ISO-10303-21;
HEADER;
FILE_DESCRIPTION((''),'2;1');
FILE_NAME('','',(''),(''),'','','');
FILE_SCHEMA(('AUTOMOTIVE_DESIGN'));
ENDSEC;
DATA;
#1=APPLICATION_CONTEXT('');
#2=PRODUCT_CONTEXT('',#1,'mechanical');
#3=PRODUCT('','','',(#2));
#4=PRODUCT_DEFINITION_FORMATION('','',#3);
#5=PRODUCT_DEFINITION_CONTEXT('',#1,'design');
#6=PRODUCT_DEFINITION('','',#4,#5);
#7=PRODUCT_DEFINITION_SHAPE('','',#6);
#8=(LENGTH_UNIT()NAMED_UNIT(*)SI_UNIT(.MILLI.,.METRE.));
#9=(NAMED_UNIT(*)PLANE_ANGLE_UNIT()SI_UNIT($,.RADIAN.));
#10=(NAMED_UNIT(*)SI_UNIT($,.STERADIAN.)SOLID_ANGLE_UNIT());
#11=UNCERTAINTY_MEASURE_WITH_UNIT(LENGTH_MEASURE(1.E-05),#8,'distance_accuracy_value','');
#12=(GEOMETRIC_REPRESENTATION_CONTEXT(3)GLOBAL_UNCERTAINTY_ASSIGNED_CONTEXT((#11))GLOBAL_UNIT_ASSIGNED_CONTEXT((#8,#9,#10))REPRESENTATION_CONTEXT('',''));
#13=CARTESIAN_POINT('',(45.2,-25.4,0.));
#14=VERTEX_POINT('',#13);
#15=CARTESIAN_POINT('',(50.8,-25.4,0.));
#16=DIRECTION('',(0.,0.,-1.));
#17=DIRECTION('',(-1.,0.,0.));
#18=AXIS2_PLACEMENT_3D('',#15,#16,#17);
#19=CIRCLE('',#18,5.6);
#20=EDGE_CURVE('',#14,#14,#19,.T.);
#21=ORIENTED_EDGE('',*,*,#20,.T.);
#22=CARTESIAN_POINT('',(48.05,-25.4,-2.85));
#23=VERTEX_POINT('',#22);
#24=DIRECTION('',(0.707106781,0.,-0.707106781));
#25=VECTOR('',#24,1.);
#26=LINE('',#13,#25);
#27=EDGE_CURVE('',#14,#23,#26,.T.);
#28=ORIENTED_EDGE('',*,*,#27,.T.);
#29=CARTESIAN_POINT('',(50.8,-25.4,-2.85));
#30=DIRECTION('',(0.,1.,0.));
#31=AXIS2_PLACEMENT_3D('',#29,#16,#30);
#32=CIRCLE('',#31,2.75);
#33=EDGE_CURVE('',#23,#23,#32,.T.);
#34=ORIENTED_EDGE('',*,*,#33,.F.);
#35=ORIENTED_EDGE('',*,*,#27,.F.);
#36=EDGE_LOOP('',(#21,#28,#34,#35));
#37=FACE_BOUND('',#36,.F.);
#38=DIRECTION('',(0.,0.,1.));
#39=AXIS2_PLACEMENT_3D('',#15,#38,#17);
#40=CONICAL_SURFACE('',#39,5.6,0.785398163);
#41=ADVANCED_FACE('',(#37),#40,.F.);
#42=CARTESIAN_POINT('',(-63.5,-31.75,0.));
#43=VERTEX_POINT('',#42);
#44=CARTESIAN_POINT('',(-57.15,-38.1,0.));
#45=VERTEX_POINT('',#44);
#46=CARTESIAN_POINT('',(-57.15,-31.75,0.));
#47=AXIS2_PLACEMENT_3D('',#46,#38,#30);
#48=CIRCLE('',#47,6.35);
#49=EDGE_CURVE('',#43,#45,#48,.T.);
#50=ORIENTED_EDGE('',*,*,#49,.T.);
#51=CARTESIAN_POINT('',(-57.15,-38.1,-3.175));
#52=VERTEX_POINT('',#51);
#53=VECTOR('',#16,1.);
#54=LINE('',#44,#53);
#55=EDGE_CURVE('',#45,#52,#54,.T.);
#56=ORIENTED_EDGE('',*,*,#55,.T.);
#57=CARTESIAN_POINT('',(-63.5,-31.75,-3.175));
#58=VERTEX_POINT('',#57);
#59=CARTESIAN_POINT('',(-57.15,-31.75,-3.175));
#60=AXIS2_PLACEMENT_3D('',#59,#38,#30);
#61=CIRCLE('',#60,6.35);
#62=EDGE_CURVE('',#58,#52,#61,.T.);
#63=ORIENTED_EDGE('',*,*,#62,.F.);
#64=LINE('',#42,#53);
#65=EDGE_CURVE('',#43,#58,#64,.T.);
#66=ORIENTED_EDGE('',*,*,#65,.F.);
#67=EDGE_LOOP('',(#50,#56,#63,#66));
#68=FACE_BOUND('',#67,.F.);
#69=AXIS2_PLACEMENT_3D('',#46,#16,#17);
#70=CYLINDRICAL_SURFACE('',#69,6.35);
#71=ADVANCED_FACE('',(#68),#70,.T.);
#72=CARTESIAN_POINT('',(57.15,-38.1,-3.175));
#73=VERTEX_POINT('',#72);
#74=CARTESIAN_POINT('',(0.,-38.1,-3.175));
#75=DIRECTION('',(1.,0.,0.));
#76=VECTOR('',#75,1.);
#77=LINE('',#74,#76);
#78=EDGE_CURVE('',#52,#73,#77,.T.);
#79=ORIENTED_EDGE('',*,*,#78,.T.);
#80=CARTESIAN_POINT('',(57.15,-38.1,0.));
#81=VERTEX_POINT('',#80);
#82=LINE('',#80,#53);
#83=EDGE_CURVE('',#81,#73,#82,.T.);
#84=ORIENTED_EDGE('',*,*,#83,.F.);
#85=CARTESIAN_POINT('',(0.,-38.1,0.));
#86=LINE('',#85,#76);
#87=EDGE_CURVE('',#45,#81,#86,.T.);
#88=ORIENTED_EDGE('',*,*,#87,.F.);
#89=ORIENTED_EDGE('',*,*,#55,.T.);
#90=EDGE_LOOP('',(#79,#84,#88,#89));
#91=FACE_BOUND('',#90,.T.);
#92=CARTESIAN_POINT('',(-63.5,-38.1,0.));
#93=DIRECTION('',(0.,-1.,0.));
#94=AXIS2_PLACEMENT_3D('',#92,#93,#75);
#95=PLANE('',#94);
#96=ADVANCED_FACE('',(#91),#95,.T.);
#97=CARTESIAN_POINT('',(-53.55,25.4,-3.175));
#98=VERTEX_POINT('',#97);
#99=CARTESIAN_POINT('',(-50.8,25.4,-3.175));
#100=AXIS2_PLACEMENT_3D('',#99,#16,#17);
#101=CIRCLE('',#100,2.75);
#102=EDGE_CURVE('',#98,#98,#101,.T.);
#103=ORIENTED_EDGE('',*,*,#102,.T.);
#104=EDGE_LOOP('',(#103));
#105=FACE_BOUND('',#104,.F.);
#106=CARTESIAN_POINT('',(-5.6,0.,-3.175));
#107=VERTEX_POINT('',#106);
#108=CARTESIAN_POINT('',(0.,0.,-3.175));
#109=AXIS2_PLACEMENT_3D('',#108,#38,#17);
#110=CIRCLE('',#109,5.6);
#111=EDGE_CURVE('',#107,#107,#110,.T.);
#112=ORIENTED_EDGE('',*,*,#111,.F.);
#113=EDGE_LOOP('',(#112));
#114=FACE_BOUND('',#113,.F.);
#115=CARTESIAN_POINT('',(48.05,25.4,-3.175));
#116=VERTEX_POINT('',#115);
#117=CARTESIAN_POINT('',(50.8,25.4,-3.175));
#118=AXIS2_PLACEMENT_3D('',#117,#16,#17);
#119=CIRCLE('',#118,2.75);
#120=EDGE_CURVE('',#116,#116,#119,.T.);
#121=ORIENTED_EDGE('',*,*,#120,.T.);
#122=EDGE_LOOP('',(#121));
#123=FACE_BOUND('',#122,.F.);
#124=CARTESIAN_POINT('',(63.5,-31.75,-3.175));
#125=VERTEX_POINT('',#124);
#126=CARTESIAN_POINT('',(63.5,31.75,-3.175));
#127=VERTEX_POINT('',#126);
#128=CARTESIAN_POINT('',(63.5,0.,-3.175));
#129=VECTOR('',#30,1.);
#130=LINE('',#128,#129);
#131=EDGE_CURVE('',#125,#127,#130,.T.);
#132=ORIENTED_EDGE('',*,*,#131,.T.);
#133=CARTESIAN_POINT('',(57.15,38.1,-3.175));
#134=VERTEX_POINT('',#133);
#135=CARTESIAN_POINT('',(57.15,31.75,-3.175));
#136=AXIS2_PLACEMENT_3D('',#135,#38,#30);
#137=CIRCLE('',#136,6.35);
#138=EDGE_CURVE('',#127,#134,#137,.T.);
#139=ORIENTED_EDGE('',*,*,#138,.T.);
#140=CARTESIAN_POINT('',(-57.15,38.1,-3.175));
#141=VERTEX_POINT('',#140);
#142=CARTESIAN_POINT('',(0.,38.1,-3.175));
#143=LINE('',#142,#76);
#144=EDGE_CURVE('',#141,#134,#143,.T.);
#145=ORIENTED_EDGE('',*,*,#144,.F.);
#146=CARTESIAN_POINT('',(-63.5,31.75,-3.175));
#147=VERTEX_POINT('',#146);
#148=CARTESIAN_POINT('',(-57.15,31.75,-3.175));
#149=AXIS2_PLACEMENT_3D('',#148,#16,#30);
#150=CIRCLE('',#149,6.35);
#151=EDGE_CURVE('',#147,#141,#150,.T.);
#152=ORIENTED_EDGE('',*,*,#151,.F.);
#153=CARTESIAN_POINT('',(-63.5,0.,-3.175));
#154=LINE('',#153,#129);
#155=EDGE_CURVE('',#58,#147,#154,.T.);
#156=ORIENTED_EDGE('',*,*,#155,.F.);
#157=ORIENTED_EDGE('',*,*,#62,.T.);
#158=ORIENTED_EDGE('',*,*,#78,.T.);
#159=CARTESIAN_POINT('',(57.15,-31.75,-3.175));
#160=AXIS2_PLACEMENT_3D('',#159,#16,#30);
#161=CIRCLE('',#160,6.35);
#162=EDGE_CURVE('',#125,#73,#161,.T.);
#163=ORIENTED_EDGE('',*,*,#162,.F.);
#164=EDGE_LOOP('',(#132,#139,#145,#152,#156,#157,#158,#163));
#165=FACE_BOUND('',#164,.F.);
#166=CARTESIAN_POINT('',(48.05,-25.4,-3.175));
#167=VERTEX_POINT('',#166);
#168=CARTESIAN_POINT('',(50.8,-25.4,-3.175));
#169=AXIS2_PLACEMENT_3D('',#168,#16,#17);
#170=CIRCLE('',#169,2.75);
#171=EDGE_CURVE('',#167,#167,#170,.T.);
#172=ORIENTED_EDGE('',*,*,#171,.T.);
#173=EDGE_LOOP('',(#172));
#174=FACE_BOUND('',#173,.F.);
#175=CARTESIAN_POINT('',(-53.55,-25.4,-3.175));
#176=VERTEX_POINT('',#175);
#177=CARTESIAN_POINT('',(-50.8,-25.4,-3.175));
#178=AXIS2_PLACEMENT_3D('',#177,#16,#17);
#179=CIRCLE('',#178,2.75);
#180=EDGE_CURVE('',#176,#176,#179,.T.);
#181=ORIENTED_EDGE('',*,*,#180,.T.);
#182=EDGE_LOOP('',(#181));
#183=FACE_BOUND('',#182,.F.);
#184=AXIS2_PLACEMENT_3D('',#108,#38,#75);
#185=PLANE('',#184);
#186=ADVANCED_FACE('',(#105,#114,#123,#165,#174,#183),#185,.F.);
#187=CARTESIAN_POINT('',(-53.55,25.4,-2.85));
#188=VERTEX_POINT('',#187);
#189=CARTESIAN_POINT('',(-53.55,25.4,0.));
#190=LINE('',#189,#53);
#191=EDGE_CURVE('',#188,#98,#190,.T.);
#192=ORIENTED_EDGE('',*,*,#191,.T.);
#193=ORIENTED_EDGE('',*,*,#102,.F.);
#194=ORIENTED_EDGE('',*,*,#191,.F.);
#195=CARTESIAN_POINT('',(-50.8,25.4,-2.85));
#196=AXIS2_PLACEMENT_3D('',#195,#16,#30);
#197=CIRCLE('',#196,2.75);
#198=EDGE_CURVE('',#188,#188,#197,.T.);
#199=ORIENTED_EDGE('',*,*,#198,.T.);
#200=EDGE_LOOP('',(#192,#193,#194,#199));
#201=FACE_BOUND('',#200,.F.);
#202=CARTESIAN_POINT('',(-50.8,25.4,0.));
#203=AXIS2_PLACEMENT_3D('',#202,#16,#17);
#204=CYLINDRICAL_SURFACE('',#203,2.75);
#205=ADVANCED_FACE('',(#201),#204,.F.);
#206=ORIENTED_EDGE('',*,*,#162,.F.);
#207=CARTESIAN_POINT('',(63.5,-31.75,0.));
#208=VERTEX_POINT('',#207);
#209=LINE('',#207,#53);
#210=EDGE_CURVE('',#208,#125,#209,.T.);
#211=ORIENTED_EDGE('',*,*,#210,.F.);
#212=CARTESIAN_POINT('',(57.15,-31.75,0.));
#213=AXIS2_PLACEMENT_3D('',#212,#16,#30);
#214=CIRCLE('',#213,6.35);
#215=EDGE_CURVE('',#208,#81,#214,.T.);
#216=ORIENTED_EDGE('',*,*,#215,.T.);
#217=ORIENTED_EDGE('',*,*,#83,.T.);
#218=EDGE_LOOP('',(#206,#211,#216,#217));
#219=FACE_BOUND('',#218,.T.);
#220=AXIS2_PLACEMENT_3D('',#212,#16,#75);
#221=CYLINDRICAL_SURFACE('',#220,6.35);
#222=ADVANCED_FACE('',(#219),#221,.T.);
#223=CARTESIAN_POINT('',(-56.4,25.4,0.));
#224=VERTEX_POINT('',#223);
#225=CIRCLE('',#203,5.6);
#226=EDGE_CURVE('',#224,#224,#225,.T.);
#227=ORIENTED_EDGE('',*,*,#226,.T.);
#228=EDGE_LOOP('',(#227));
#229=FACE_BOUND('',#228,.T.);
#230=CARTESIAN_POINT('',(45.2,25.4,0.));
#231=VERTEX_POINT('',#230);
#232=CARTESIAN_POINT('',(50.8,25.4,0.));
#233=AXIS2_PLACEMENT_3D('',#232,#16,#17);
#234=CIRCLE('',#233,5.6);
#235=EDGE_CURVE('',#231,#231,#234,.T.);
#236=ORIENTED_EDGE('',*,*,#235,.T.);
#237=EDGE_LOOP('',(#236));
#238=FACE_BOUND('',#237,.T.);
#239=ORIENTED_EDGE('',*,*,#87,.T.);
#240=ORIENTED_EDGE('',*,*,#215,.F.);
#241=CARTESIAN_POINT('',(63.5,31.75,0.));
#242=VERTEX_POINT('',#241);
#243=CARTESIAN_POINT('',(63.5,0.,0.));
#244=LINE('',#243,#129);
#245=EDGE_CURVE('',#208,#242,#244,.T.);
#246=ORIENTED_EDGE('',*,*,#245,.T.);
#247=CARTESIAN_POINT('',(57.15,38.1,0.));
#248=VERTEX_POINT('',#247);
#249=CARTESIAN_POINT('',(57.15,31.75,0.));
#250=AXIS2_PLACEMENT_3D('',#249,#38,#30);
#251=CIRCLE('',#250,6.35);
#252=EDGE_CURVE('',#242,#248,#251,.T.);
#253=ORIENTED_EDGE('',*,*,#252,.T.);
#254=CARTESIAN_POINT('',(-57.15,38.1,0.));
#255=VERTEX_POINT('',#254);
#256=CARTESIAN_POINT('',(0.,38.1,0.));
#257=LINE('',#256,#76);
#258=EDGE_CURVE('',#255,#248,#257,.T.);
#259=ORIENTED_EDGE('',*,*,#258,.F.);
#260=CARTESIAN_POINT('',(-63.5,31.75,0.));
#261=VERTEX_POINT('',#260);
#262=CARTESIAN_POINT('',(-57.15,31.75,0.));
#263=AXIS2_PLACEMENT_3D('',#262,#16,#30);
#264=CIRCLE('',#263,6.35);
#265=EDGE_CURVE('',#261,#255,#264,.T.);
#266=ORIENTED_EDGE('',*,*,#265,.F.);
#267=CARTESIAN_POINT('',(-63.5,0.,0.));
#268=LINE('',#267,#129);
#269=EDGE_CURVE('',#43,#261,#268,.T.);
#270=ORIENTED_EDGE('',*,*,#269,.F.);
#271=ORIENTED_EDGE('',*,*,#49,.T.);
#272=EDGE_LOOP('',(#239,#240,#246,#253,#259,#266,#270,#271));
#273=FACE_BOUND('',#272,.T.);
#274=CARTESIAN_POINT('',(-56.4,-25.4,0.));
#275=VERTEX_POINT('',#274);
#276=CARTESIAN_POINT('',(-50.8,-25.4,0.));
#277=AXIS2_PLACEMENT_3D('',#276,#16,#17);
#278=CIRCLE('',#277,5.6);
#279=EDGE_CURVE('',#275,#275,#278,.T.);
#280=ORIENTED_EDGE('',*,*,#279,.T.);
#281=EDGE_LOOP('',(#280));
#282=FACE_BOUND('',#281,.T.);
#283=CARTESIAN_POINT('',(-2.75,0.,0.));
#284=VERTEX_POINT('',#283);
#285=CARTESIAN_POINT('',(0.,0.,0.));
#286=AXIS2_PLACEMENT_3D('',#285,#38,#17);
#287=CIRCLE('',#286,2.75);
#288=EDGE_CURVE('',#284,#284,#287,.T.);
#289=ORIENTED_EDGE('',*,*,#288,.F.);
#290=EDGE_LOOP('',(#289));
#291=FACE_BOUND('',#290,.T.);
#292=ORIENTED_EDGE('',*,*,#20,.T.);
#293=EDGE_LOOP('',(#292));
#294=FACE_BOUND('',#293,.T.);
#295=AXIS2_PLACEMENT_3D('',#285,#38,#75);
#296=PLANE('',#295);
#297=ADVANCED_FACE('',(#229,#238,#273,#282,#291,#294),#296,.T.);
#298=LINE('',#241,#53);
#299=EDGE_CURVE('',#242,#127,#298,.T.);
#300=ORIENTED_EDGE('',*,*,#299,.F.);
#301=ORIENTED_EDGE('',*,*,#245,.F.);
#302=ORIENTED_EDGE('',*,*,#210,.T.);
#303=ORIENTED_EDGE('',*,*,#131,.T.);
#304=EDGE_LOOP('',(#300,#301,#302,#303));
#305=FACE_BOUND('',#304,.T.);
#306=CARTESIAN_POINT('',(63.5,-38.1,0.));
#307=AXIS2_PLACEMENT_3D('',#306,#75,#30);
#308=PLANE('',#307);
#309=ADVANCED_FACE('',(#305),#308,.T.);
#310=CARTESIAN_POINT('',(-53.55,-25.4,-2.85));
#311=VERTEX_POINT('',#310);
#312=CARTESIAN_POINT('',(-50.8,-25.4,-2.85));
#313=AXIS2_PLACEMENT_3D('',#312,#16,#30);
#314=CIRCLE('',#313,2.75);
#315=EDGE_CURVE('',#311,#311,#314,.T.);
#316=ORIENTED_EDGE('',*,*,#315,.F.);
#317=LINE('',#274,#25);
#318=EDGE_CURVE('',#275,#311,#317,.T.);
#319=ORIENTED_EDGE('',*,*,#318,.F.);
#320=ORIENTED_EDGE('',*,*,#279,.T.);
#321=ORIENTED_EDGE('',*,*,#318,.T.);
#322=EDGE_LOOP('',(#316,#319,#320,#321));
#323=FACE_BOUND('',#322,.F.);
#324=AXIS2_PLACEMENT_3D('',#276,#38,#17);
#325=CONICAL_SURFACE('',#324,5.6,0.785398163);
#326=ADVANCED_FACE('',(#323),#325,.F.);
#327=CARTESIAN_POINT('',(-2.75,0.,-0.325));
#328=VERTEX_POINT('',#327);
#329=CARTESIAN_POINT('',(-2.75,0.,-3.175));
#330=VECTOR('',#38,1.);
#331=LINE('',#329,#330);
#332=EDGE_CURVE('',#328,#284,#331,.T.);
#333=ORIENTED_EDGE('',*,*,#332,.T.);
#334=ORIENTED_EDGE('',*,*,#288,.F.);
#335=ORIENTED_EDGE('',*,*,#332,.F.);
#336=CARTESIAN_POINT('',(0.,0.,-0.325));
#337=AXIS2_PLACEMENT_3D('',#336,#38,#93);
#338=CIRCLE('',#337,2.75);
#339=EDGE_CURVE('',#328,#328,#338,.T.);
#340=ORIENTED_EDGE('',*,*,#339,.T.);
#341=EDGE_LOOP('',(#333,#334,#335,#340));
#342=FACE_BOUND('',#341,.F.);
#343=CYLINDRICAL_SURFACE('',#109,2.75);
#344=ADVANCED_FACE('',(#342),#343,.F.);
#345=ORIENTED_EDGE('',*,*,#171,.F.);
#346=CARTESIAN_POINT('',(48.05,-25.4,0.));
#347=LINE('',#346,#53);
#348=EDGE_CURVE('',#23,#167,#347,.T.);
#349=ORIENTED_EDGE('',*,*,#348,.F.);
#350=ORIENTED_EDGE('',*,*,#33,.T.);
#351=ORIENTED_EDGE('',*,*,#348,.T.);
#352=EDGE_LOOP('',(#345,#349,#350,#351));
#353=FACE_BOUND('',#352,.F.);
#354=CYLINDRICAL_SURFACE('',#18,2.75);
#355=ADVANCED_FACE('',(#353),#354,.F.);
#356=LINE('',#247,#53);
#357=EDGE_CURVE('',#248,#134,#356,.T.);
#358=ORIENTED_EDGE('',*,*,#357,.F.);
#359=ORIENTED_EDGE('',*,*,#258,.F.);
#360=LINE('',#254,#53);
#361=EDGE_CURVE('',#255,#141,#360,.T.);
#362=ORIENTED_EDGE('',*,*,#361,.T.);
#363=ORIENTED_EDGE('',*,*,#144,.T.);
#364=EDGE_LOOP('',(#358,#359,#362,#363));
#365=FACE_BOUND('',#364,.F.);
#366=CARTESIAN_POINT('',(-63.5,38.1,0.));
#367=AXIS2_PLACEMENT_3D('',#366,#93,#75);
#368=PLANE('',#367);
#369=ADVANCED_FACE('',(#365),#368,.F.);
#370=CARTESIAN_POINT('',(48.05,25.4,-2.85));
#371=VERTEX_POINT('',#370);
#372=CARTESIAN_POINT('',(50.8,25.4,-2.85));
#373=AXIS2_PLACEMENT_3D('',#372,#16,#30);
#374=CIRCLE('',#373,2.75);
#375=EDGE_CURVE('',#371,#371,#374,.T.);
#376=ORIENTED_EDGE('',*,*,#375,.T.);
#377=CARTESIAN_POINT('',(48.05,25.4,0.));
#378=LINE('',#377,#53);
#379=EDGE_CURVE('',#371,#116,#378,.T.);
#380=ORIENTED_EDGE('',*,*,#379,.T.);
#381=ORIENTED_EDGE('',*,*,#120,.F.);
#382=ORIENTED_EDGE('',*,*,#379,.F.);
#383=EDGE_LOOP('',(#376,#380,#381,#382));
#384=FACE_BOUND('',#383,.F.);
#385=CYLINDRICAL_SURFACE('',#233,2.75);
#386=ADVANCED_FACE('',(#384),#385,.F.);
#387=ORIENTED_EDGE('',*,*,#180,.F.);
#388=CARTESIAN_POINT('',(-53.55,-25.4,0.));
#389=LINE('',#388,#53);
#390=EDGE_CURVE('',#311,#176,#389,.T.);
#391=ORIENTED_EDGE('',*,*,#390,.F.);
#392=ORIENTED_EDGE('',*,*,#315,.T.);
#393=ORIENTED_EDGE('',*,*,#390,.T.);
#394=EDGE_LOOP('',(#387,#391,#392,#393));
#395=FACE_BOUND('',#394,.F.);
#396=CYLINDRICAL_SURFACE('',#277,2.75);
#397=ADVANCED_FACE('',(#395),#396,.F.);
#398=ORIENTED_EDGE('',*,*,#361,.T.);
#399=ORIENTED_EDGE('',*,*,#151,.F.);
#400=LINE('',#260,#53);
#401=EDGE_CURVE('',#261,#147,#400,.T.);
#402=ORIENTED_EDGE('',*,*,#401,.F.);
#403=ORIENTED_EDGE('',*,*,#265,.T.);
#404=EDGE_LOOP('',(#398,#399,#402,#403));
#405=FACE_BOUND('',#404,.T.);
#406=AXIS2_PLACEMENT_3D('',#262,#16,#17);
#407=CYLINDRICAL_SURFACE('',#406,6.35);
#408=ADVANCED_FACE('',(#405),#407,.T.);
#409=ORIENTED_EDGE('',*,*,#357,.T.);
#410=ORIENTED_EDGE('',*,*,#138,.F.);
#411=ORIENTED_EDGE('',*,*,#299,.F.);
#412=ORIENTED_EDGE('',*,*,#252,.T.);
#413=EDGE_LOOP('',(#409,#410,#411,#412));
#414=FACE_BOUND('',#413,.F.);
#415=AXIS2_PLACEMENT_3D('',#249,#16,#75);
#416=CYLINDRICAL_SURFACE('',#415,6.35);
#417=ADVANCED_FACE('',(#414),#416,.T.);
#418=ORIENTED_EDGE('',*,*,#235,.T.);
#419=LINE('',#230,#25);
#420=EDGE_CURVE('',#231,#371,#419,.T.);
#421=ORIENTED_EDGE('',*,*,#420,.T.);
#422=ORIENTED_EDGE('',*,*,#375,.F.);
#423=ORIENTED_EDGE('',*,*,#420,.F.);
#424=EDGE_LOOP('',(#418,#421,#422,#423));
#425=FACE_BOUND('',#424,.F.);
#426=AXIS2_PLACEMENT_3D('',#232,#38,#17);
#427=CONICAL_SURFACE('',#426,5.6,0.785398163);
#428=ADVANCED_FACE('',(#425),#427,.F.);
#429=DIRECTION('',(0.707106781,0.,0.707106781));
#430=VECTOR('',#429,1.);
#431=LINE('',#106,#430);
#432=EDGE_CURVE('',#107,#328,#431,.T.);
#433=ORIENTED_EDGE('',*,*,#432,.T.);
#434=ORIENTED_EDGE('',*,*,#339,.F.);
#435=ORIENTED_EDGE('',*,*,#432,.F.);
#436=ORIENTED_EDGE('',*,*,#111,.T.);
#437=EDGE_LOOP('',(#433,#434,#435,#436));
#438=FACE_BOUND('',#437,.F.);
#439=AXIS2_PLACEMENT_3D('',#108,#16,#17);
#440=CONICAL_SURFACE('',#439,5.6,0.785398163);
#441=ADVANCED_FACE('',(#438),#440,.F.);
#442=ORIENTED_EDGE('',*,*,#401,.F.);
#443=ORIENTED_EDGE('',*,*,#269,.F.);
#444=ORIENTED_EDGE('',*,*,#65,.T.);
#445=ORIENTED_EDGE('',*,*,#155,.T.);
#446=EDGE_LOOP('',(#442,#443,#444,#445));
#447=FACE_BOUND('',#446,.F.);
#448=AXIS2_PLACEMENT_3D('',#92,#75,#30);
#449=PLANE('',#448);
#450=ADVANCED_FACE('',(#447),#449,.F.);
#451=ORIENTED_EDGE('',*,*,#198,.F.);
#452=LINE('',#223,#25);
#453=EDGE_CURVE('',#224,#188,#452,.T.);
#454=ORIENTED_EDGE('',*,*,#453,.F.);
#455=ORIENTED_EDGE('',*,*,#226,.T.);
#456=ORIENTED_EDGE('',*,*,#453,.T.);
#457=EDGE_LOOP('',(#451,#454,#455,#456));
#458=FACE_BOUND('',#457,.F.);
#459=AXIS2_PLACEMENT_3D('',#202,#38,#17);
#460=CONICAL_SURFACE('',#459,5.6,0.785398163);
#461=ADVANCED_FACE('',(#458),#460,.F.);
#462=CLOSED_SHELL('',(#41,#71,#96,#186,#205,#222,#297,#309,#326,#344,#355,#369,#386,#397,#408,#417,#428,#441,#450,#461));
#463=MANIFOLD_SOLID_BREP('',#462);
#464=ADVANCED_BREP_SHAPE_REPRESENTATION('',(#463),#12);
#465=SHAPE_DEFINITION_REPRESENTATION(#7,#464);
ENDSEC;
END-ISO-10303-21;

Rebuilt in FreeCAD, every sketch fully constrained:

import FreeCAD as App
import Part
import Sketcher
from FreeCAD import Vector
Q = App.Units.Quantity


def edges_at(feature, points):
    """Names of the edges that pass closest to the given points."""
    edges = feature.Shape.Edges
    near = lambda p: min(range(len(edges)), key=lambda i: edges[i].distToShape(Part.Vertex(*p))[0])
    return sorted({f"Edge{near(p) + 1}" for p in points})


def add_polygon(sketch, points):
    """Adds a closed chain of lines whose ends are joined by coincident constraints."""
    first, n = sketch.GeometryCount, len(points)
    for a, b in zip(points, points[1:] + points[:1]):
        sketch.addGeometry(Part.LineSegment(App.Vector(*a, 0), App.Vector(*b, 0)), False)
    for i in range(n):
        sketch.addConstraint(Sketcher.Constraint("Coincident", first + i, 2, first + (i + 1) % n, 1))

doc = App.newDocument("Part")
body = doc.addObject("PartDesign::Body", "Body")

sketch1 = body.newObject("Sketcher::SketchObject", "Sketch")
sketch1.AttachmentSupport = (doc.getObject("XY_Plane"), [""])
sketch1.MapMode = "FlatFace"
add_polygon(sketch1, [(-64, 38), (-64, -38), (64, -38), (64, 38)])
sketch1.addConstraint(Sketcher.Constraint("Vertical", 0))
sketch1.addConstraint(Sketcher.Constraint("Horizontal", 1))
sketch1.addConstraint(Sketcher.Constraint("Vertical", 2))
sketch1.addConstraint(Sketcher.Constraint("Horizontal", 3))
sketch1.addConstraint(Sketcher.Constraint("Symmetric", 0, 2, 2, 2, -1, 1))
sketch1.addConstraint(Sketcher.Constraint("DistanceX", 1, 1, 1, 2, Q("5 in")))
sketch1.addConstraint(Sketcher.Constraint("DistanceY", 0, 2, 0, 1, Q("3 in")))
pad1 = body.newObject("PartDesign::Pad", "Pad")
pad1.Profile = sketch1
pad1.Length = Q("0.125 in")
pad1.Reversed = True

sketch2 = body.newObject("Sketcher::SketchObject", "Sketch001")
sketch2.AttachmentSupport = (doc.getObject("XY_Plane"), [""])
sketch2.MapMode = "FlatFace"
sketch2.addGeometry(Part.Circle(Vector(-50.8, -25.4, 0), Vector(0, 0, 1), 2.8), False)
sketch2.addGeometry(Part.Circle(Vector(-50.8, 25.4, 0), Vector(0, 0, 1), 2.8), False)
sketch2.addGeometry(Part.Circle(Vector(50.8, 25.4, 0), Vector(0, 0, 1), 2.8), False)
sketch2.addGeometry(Part.Circle(Vector(50.8, -25.4, 0), Vector(0, 0, 1), 2.8), False)
sketch2.addConstraint(Sketcher.Constraint("Equal", 0, 1))
sketch2.addConstraint(Sketcher.Constraint("Equal", 1, 2))
sketch2.addConstraint(Sketcher.Constraint("Equal", 2, 3))
sketch2.addConstraint(Sketcher.Constraint("Symmetric", 0, 3, 2, 3, -1, 1))
sketch2.addConstraint(Sketcher.Constraint("Symmetric", 1, 3, 3, 3, -1, 1))
sketch2.addConstraint(Sketcher.Constraint("Symmetric", 1, 3, 2, 3, -2))
sketch2.addConstraint(Sketcher.Constraint("DistanceX", 0, 3, -1, 1, Q("2 in")))
sketch2.addConstraint(Sketcher.Constraint("DistanceY", 0, 3, -1, 1, Q("1 in")))
sketch2.addConstraint(Sketcher.Constraint("Diameter", 0, 5.5))
doc.recompute()
hole = body.newObject("PartDesign::Hole", "Hole")
hole.Profile = sketch2
hole.ThreadType = "None"
hole.Diameter = 5.5
hole.DepthType = "ThroughAll"
hole.HoleCutType = "Countersink"
hole.HoleCutDiameter = 11.2
hole.HoleCutCountersinkAngle = 90

sketch3 = body.newObject("Sketcher::SketchObject", "Sketch002")
sketch3.AttachmentSupport = (doc.getObject("XY_Plane"), [""])
sketch3.MapMode = "FlatFace"
sketch3.AttachmentOffset = App.Placement(Vector(0, 0, -0.125 * 25.4), App.Rotation())
sketch3.addGeometry(Part.Circle(Vector(0, 0, 0), Vector(0, 0, 1), 2.8), False)
sketch3.addConstraint(Sketcher.Constraint("Coincident", 0, 3, -1, 1))
sketch3.addConstraint(Sketcher.Constraint("Diameter", 0, 5.5))
doc.recompute()
hole2 = body.newObject("PartDesign::Hole", "Hole001")
hole2.Profile = sketch3
hole2.ThreadType = "None"
hole2.Diameter = 5.5
hole2.DepthType = "ThroughAll"
hole2.HoleCutType = "Countersink"
hole2.HoleCutDiameter = 11.2
hole2.HoleCutCountersinkAngle = 90
hole2.Reversed = True
doc.recompute()

fillet = body.newObject("PartDesign::Fillet", "Fillet")
fillet.Base = (hole2, edges_at(hole2, [
    (63.5, -38.1, -1.587),
    (63.5, 38.1, -1.587),
    (-63.5, -38.1, -1.587),
    (-63.5, 38.1, -1.587),
]))
fillet.Radius = Q("0.25 in")

doc.recompute()
